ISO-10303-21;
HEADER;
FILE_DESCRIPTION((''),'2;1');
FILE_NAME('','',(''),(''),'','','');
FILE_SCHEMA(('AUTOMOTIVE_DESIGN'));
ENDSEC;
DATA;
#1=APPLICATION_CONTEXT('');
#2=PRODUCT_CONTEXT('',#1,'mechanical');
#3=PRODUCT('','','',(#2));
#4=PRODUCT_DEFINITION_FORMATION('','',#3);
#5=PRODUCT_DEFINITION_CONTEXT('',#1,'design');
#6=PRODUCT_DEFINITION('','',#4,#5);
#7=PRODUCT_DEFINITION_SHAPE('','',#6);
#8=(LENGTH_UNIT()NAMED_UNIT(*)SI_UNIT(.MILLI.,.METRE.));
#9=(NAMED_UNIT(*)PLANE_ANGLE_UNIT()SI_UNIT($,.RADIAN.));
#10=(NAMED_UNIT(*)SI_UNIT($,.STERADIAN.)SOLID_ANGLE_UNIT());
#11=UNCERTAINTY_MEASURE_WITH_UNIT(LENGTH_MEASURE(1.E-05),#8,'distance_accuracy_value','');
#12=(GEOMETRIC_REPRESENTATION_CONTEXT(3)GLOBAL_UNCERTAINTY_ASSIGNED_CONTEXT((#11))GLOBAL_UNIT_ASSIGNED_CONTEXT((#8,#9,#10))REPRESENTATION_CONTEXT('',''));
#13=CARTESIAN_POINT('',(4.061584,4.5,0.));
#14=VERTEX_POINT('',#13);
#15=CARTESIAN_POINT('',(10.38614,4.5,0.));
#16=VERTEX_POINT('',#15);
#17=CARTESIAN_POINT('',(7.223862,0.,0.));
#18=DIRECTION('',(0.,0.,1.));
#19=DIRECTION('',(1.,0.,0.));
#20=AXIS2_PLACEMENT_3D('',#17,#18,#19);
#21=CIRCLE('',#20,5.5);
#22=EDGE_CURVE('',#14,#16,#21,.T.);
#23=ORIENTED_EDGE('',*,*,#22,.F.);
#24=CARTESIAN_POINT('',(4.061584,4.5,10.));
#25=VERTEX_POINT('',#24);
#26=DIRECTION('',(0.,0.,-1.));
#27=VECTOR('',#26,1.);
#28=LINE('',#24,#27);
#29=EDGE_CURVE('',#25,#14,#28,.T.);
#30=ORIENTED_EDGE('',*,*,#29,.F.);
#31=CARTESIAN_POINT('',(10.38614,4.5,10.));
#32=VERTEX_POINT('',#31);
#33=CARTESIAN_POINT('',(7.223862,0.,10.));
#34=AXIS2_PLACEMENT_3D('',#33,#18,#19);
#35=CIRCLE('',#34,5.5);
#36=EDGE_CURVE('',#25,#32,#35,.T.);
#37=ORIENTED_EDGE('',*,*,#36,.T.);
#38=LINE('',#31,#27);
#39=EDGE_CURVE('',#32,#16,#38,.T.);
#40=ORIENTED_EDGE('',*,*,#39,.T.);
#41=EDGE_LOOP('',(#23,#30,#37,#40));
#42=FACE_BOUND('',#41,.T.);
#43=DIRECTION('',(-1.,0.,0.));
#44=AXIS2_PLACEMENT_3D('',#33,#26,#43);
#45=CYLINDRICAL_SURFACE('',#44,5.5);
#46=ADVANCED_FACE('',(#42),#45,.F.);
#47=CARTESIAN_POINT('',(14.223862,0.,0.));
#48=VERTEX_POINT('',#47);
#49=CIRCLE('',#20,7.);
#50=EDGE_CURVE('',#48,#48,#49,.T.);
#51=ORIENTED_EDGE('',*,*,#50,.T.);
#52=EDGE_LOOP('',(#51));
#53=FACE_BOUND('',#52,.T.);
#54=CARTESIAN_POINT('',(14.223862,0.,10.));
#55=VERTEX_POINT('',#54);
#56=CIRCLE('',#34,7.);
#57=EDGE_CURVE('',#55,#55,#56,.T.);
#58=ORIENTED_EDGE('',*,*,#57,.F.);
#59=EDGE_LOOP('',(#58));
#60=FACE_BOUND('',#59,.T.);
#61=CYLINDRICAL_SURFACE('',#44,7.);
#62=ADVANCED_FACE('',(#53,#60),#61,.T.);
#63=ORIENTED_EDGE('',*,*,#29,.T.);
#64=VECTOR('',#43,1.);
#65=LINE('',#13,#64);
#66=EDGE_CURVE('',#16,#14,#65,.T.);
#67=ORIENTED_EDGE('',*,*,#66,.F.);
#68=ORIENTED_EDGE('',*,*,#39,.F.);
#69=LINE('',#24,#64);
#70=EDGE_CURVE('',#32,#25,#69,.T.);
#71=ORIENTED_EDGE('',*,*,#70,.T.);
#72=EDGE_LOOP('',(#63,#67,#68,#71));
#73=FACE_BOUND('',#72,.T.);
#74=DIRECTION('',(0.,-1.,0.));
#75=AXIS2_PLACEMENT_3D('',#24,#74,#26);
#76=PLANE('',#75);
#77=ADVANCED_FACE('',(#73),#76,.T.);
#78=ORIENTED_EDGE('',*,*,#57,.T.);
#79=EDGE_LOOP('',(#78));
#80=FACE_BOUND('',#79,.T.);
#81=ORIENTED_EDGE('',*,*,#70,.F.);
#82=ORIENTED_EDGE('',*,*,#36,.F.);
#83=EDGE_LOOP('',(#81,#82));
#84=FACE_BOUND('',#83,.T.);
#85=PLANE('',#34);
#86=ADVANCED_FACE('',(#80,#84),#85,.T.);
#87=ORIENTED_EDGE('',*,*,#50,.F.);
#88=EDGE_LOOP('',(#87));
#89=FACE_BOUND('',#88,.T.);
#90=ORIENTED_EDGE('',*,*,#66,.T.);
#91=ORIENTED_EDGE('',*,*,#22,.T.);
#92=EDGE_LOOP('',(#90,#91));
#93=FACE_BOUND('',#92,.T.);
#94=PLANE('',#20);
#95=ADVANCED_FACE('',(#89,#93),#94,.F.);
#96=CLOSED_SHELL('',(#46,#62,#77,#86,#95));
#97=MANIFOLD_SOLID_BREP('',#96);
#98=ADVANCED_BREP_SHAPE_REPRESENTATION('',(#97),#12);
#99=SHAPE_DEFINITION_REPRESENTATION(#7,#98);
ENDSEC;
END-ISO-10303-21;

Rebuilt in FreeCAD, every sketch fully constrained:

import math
import FreeCAD as App
import Part
import Sketcher
Q = App.Units.Quantity

doc = App.newDocument("Part")
body = doc.addObject("PartDesign::Body", "Body")

# Sketch on XY plane
sketch1 = body.newObject("Sketcher::SketchObject", "Sketch")
sketch1.AttachmentSupport = (doc.getObject("XY_Plane"), [""])
sketch1.MapMode = "FlatFace"
sketch1.addGeometry([
    Part.Circle(App.Vector(7.223862, 0, 0), App.Vector(0, 0, 1), 7),
    Part.ArcOfCircle(Part.Circle(App.Vector(7.223862, 0, 0), App.Vector(0, 0, 1), 5.5), math.radians(125.096801), math.radians(414.903199)),
    Part.LineSegment(App.Vector(4.061584, 4.5, 0), App.Vector(10.38614, 4.5, 0)),
], False)
sketch1.addConstraint([
    Sketcher.Constraint("Coincident", 1, 1, 2, 1),
    Sketcher.Constraint("Coincident", 2, 2, 1, 2),
    Sketcher.Constraint("Horizontal", 2),
    Sketcher.Constraint("Coincident", 1, 3, 0, 3),
    Sketcher.Constraint("PointOnObject", 0, 3, -1),
    Sketcher.Constraint("Diameter", 0, Q("14 mm")),
    Sketcher.Constraint("Radius", 1, Q("5.5 mm")),
    Sketcher.Constraint("DistanceY", -1, 1, 1, 1, Q("4.5 mm")),
    Sketcher.Constraint("DistanceX", -1, 1, 0, 3, Q("7.223862 mm")),
])
pad1 = body.newObject("PartDesign::Pad", "Pad")
pad1.Profile = sketch1
pad1.Length = 10

doc.recompute()
